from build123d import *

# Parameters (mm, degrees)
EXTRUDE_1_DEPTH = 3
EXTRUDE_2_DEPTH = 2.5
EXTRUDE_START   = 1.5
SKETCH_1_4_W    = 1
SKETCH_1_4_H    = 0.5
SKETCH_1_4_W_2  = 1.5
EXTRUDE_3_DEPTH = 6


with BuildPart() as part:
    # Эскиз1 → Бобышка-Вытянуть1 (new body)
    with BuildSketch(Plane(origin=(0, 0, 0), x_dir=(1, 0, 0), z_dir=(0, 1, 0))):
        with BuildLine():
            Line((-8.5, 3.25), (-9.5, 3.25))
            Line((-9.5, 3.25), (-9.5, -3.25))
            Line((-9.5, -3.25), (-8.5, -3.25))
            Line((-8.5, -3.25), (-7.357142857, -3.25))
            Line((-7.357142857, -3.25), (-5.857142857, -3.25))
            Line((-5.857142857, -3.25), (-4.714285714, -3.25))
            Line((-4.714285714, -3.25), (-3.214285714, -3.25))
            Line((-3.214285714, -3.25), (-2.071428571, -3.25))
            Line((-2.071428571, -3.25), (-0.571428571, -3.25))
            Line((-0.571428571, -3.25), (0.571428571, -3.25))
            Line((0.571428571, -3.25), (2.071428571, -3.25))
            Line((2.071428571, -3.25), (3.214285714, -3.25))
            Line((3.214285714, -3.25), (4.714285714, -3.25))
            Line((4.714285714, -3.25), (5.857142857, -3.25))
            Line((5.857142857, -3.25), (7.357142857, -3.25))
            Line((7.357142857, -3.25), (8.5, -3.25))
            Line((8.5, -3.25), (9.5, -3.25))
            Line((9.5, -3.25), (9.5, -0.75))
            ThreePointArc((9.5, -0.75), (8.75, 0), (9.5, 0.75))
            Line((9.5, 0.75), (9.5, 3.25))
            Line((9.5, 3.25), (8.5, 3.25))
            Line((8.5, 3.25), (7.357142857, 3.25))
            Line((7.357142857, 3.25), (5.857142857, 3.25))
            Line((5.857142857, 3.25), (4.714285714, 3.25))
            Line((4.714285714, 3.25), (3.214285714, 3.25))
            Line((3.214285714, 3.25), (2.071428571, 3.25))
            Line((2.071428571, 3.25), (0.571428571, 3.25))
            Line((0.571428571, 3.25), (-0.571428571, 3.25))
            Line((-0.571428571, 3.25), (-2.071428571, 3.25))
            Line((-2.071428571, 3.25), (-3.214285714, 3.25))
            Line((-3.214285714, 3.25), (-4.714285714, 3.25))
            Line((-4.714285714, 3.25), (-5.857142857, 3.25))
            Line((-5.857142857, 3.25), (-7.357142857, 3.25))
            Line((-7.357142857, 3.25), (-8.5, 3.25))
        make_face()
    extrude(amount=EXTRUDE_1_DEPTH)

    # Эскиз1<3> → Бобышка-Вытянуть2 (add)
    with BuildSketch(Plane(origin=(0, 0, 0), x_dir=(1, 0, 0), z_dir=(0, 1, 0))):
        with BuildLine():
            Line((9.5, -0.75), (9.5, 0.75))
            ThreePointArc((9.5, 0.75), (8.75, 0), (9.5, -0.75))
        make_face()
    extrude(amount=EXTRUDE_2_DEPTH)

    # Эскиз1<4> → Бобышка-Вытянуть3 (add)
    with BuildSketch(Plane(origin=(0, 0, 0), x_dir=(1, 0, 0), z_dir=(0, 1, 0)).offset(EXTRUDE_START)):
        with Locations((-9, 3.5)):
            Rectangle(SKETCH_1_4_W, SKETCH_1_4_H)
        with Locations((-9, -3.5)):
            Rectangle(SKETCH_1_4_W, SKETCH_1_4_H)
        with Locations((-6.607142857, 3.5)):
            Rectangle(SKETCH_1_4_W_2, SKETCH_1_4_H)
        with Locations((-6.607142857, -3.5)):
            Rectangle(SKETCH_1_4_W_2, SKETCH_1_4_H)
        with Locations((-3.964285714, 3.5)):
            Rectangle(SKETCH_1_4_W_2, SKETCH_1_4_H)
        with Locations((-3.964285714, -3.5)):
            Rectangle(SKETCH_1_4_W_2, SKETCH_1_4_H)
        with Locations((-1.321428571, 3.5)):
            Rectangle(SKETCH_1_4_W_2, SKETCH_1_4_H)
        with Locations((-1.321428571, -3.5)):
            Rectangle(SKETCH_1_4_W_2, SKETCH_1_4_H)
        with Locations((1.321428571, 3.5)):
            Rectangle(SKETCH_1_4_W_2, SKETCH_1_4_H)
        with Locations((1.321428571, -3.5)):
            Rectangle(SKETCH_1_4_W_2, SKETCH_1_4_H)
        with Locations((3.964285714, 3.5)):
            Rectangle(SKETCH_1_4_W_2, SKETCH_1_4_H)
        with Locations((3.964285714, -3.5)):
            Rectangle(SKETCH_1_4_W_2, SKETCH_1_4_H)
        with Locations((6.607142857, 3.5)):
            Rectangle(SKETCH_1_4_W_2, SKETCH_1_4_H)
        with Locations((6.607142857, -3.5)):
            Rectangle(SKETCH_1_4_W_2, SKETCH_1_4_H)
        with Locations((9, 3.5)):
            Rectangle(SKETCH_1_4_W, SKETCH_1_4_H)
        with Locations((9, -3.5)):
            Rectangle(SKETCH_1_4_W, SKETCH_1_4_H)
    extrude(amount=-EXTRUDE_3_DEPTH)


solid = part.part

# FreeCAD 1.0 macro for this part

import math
import FreeCAD as App
import Part
import Sketcher
from FreeCAD import Vector
Q = App.Units.Quantity


def add_polygon(sketch, points):
    """Adds a closed chain of lines whose ends are joined by coincident constraints."""
    first, n = sketch.GeometryCount, len(points)
    for a, b in zip(points, points[1:] + points[:1]):
        sketch.addGeometry(Part.LineSegment(App.Vector(*a, 0), App.Vector(*b, 0)), False)
    for i in range(n):
        sketch.addConstraint(Sketcher.Constraint("Coincident", first + i, 2, first + (i + 1) % n, 1))

doc = App.newDocument("Part")
body = doc.addObject("PartDesign::Body", "Body")

# Sketch on XZ plane
sketch1 = doc.addObject("Sketcher::SketchObject", "Sketch")
body.addObject(sketch1)
sketch1.AttachmentSupport = (doc.XZ_Plane, [""])
sketch1.MapMode = "FlatFace"
sketch1.addGeometry([
    Part.LineSegment(Vector(-9.5, -3.2, 0), Vector(-9.5, 3.2, 0)),  # 0
    Part.LineSegment(Vector(-9.5, 3.2, 0), Vector(9.5, 3.2, 0)),  # 1
    Part.LineSegment(Vector(9.5, 3.2, 0), Vector(9.5, 0.8, 0)),  # 2
    Part.ArcOfCircle(Part.Circle(Vector(9.5, 0, 0), Vector(0, 0, 1), 0.8), math.radians(90), math.radians(270)),  # 3
    Part.LineSegment(Vector(9.5, -0.8, 0), Vector(9.5, -3.2, 0)),  # 4
    Part.LineSegment(Vector(9.5, -3.2, 0), Vector(-9.5, -3.2, 0)),  # 5
], False)
sketch1.addConstraint([
    Sketcher.Constraint("Coincident", 0, 2, 1, 1),
    Sketcher.Constraint("Coincident", 1, 2, 2, 1),
    Sketcher.Constraint("Coincident", 2, 2, 3, 1),
    Sketcher.Constraint("Coincident", 3, 2, 4, 1),
    Sketcher.Constraint("Coincident", 4, 2, 5, 1),
    Sketcher.Constraint("Coincident", 5, 2, 0, 1),
    Sketcher.Constraint("Vertical", 0),
    Sketcher.Constraint("Horizontal", 1),
    Sketcher.Constraint("Vertical", 2),
    Sketcher.Constraint("Vertical", 4),
    Sketcher.Constraint("Horizontal", 5),
    Sketcher.Constraint("Symmetric", 0, 2, 4, 2, -1, 1),
    Sketcher.Constraint("Symmetric", 2, 2, 3, 2, -1),
    Sketcher.Constraint("Vertical", 3, 3, 1, 2),
    Sketcher.Constraint("DistanceX", 1, 1, 1, 2, Q("19 mm")),
    Sketcher.Constraint("Radius", 3, Q("0.75 mm")),
    Sketcher.Constraint("DistanceY", 0, 1, 0, 2, Q("6.5 mm")),
])
pad1 = doc.addObject("PartDesign::Pad", "Pad")
body.addObject(pad1)
pad1.Profile = sketch1
pad1.Length = 3
pad1.Reversed = True

# Sketch on XZ plane
sketch2 = doc.addObject("Sketcher::SketchObject", "Sketch001")
body.addObject(sketch2)
sketch2.AttachmentSupport = (doc.XZ_Plane, [""])
sketch2.MapMode = "FlatFace"
sketch2.addGeometry([
    Part.LineSegment(Vector(9.5, 0.8, 0), Vector(9.5, -0.8, 0)),
    Part.ArcOfCircle(Part.Circle(Vector(9.5, 0, 0), Vector(0, 0, 1), 0.8), math.radians(90), math.radians(270)),
], False)
sketch2.addConstraint([
    Sketcher.Constraint("Coincident", 0, 1, 1, 1),
    Sketcher.Constraint("Coincident", 1, 2, 0, 2),
    Sketcher.Constraint("Vertical", 0),
    Sketcher.Constraint("PointOnObject", 1, 3, -1),
    Sketcher.Constraint("Vertical", 1, 3, 0, 1),
    Sketcher.Constraint("Radius", 1, Q("0.75 mm")),
    Sketcher.Constraint("DistanceX", -1, 1, 1, 3, Q("9.5 mm")),
])
pad2 = doc.addObject("PartDesign::Pad", "Pad001")
body.addObject(pad2)
pad2.Profile = sketch2
pad2.Length = 2.5
pad2.Reversed = True

# Sketch on XZ plane
sketch3 = doc.addObject("Sketcher::SketchObject", "Sketch002")
body.addObject(sketch3)
sketch3.AttachmentSupport = (doc.XZ_Plane, [""])
sketch3.MapMode = "FlatFace"
sketch3.AttachmentOffset = App.Placement(Vector(0, 0, -1.5), App.Rotation())
add_polygon(sketch3, [(-9.5, -3.8), (-9.5, -3.2), (-8.5, -3.2), (-8.5, -3.8)])  # lines 0-3
add_polygon(sketch3, [(-9.5, 3.2), (-9.5, 3.8), (-8.5, 3.8), (-8.5, 3.2)])  # lines 4-7
add_polygon(sketch3, [(-7.4, -3.8), (-7.4, -3.2), (-5.9, -3.2), (-5.9, -3.8)])  # lines 8-11
add_polygon(sketch3, [(-7.4, 3.2), (-7.4, 3.8), (-5.9, 3.8), (-5.9, 3.2)])  # lines 12-15
add_polygon(sketch3, [(-4.7, -3.8), (-4.7, -3.2), (-3.2, -3.2), (-3.2, -3.8)])  # lines 16-19
add_polygon(sketch3, [(-4.7, 3.2), (-4.7, 3.8), (-3.2, 3.8), (-3.2, 3.2)])  # lines 20-23
add_polygon(sketch3, [(-2.1, -3.8), (-2.1, -3.2), (-0.6, -3.2), (-0.6, -3.8)])  # lines 24-27
add_polygon(sketch3, [(-2.1, 3.2), (-2.1, 3.8), (-0.6, 3.8), (-0.6, 3.2)])  # lines 28-31
add_polygon(sketch3, [(0.6, -3.8), (0.6, -3.2), (2.1, -3.2), (2.1, -3.8)])  # lines 32-35
add_polygon(sketch3, [(0.6, 3.2), (0.6, 3.8), (2.1, 3.8), (2.1, 3.2)])  # lines 36-39
add_polygon(sketch3, [(3.2, -3.8), (3.2, -3.2), (4.7, -3.2), (4.7, -3.8)])  # lines 40-43
add_polygon(sketch3, [(3.2, 3.2), (3.2, 3.8), (4.7, 3.8), (4.7, 3.2)])  # lines 44-47
add_polygon(sketch3, [(5.9, -3.8), (5.9, -3.2), (7.4, -3.2), (7.4, -3.8)])  # lines 48-51
add_polygon(sketch3, [(5.9, 3.2), (5.9, 3.8), (7.4, 3.8), (7.4, 3.2)])  # lines 52-55
add_polygon(sketch3, [(8.5, -3.8), (8.5, -3.2), (9.5, -3.2), (9.5, -3.8)])  # lines 56-59
add_polygon(sketch3, [(8.5, 3.2), (8.5, 3.8), (9.5, 3.8), (9.5, 3.2)])  # lines 60-63
sketch3.addConstraint([
    Sketcher.Constraint("Vertical", 0),
    Sketcher.Constraint("Horizontal", 1),
    Sketcher.Constraint("Vertical", 2),
    Sketcher.Constraint("Horizontal", 3),
    Sketcher.Constraint("Vertical", 4),
    Sketcher.Constraint("Horizontal", 5),
    Sketcher.Constraint("Vertical", 6),
    Sketcher.Constraint("Horizontal", 7),
    Sketcher.Constraint("Vertical", 8),
    Sketcher.Constraint("Horizontal", 9),
    Sketcher.Constraint("Vertical", 10),
    Sketcher.Constraint("Horizontal", 11),
    Sketcher.Constraint("Vertical", 12),
    Sketcher.Constraint("Horizontal", 13),
    Sketcher.Constraint("Vertical", 14),
    Sketcher.Constraint("Horizontal", 15),
    Sketcher.Constraint("Vertical", 16),
    Sketcher.Constraint("Horizontal", 17),
    Sketcher.Constraint("Vertical", 18),
    Sketcher.Constraint("Horizontal", 19),
    Sketcher.Constraint("Vertical", 20),
    Sketcher.Constraint("Horizontal", 21),
    Sketcher.Constraint("Vertical", 22),
    Sketcher.Constraint("Horizontal", 23),
    Sketcher.Constraint("Vertical", 24),
    Sketcher.Constraint("Horizontal", 25),
    Sketcher.Constraint("Vertical", 26),
    Sketcher.Constraint("Horizontal", 27),
    Sketcher.Constraint("Vertical", 28),
    Sketcher.Constraint("Horizontal", 29),
    Sketcher.Constraint("Vertical", 30),
    Sketcher.Constraint("Horizontal", 31),
    Sketcher.Constraint("Vertical", 32),
    Sketcher.Constraint("Horizontal", 33),
    Sketcher.Constraint("Vertical", 34),
    Sketcher.Constraint("Horizontal", 35),
    Sketcher.Constraint("Vertical", 36),
    Sketcher.Constraint("Horizontal", 37),
    Sketcher.Constraint("Vertical", 38),
    Sketcher.Constraint("Horizontal", 39),
    Sketcher.Constraint("Vertical", 40),
    Sketcher.Constraint("Horizontal", 41),
    Sketcher.Constraint("Vertical", 42),
    Sketcher.Constraint("Horizontal", 43),
    Sketcher.Constraint("Vertical", 44),
    Sketcher.Constraint("Horizontal", 45),
    Sketcher.Constraint("Vertical", 46),
    Sketcher.Constraint("Horizontal", 47),
    Sketcher.Constraint("Vertical", 48),
    Sketcher.Constraint("Horizontal", 49),
    Sketcher.Constraint("Vertical", 50),
    Sketcher.Constraint("Horizontal", 51),
    Sketcher.Constraint("Vertical", 52),
    Sketcher.Constraint("Horizontal", 53),
    Sketcher.Constraint("Vertical", 54),
    Sketcher.Constraint("Horizontal", 55),
    Sketcher.Constraint("Vertical", 56),
    Sketcher.Constraint("Horizontal", 57),
    Sketcher.Constraint("Vertical", 58),
    Sketcher.Constraint("Horizontal", 59),
    Sketcher.Constraint("Vertical", 60),
    Sketcher.Constraint("Horizontal", 61),
    Sketcher.Constraint("Vertical", 62),
    Sketcher.Constraint("Horizontal", 63),
    Sketcher.Constraint("Symmetric", 30, 2, 32, 2, -1, 1),
    Sketcher.Constraint("Symmetric", 28, 2, 34, 2, -1, 1),
    Sketcher.Constraint("Symmetric", 26, 2, 36, 2, -1, 1),
    Sketcher.Constraint("Symmetric", 24, 2, 38, 2, -1, 1),
    Sketcher.Constraint("Symmetric", 22, 2, 40, 2, -1, 1),
    Sketcher.Constraint("Symmetric", 20, 2, 42, 2, -1, 1),
    Sketcher.Constraint("Symmetric", 18, 2, 44, 2, -1, 1),
    Sketcher.Constraint("Symmetric", 16, 2, 46, 2, -1, 1),
    Sketcher.Constraint("Symmetric", 14, 2, 48, 2, -1, 1),
    Sketcher.Constraint("Symmetric", 12, 2, 50, 2, -1, 1),
    Sketcher.Constraint("Symmetric", 10, 2, 52, 2, -1, 1),
    Sketcher.Constraint("Symmetric", 8, 2, 54, 2, -1, 1),
    Sketcher.Constraint("Symmetric", 6, 2, 56, 2, -1, 1),
    Sketcher.Constraint("Symmetric", 4, 2, 58, 2, -1, 1),
    Sketcher.Constraint("Symmetric", 2, 2, 60, 2, -1, 1),
    Sketcher.Constraint("Symmetric", 0, 2, 62, 2, -1, 1),
    Sketcher.Constraint("Symmetric", 25, 2, 32, 2, -2),
    Sketcher.Constraint("Symmetric", 27, 2, 34, 2, -2),
    Sketcher.Constraint("Symmetric", 17, 2, 40, 2, -2),
    Sketcher.Constraint("Symmetric", 19, 2, 42, 2, -2),
    Sketcher.Constraint("Symmetric", 9, 2, 48, 2, -2),
    Sketcher.Constraint("Symmetric", 11, 2, 50, 2, -2),
    Sketcher.Constraint("Symmetric", 1, 2, 56, 2, -2),
    Sketcher.Constraint("Symmetric", 3, 2, 58, 2, -2),
    Sketcher.Constraint("Horizontal", 1, 2, 8, 2),
    Sketcher.Constraint("Horizontal", 3, 2, 10, 2),
    Sketcher.Constraint("Horizontal", 9, 2, 16, 2),
    Sketcher.Constraint("Horizontal", 11, 2, 18, 2),
    Sketcher.Constraint("Horizontal", 17, 2, 24, 2),
    Sketcher.Constraint("Horizontal", 19, 2, 26, 2),
    Sketcher.Constraint("Equal", 15, 17),
    Sketcher.Constraint("Equal", 23, 25),
    Sketcher.Constraint("DistanceX", 1, 1, 1, 2, Q("1 mm")),
    Sketcher.Constraint("DistanceX", 9, 1, 9, 2, Q("1.5 mm")),
    Sketcher.Constraint("DistanceY", 0, 1, 0, 2, Q("0.5 mm")),
    Sketcher.Constraint("DistanceX", 0, 2, -1, 1, Q("9.5 mm")),
    Sketcher.Constraint("DistanceY", 0, 2, -1, 1, Q("3.25 mm")),
    Sketcher.Constraint("DistanceX", 24, 2, -1, 1, Q("2.071429 mm")),
    Sketcher.Constraint("DistanceX", 8, 2, -1, 1, Q("7.357143 mm")),
    Sketcher.Constraint("DistanceX", 16, 2, -1, 1, Q("4.714286 mm")),
])
pad3 = doc.addObject("PartDesign::Pad", "Pad002")
body.addObject(pad3)
pad3.Profile = sketch3
pad3.Length = 6

doc.recompute()
